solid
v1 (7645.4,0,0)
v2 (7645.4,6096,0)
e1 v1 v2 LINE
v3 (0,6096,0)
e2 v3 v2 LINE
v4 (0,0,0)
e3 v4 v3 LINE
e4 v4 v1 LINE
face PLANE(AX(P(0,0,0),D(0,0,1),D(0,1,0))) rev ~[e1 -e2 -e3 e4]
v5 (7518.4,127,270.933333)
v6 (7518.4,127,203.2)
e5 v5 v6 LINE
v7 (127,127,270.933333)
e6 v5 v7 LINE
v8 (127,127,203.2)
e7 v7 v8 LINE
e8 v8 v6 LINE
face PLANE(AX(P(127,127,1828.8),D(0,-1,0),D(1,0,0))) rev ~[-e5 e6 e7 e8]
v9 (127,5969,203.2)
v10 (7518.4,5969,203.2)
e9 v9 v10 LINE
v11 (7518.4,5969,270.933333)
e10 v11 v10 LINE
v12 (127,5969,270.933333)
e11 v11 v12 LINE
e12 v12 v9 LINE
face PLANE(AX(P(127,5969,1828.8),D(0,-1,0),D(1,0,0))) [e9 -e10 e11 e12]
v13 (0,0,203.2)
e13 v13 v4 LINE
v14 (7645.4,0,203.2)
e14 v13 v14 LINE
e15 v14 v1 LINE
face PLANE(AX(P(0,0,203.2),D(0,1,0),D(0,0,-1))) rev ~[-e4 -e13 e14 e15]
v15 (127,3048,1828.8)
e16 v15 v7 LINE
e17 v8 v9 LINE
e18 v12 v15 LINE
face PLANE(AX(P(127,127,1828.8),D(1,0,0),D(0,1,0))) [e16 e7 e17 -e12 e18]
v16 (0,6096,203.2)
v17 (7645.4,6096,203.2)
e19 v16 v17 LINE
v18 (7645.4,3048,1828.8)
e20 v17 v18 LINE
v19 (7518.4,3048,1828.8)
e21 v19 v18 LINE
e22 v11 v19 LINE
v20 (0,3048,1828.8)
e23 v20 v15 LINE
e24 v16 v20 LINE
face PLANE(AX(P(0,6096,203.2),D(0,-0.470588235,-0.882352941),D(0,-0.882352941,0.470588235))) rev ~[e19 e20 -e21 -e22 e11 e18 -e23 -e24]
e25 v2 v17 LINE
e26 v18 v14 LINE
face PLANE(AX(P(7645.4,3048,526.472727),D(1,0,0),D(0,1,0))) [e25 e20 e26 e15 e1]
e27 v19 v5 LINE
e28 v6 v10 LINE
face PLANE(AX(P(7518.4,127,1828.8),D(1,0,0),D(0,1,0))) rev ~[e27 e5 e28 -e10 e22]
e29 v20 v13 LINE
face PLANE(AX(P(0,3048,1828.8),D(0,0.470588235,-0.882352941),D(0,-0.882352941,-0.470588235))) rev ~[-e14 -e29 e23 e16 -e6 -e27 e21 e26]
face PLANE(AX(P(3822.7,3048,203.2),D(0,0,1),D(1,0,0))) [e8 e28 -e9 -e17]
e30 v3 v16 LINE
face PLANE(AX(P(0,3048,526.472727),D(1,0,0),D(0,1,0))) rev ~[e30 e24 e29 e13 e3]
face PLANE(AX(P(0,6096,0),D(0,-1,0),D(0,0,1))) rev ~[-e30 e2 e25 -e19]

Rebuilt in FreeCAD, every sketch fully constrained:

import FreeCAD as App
import Part
import Sketcher
Q = App.Units.Quantity


def add_polygon(sketch, points):
    """Adds a closed chain of lines whose ends are joined by coincident constraints."""
    first, n = sketch.GeometryCount, len(points)
    for a, b in zip(points, points[1:] + points[:1]):
        sketch.addGeometry(Part.LineSegment(App.Vector(*a, 0), App.Vector(*b, 0)), False)
    for i in range(n):
        sketch.addConstraint(Sketcher.Constraint("Coincident", first + i, 2, first + (i + 1) % n, 1))

doc = App.newDocument("Part")
body = doc.addObject("PartDesign::Body", "Body")

sketch1 = doc.addObject("Sketcher::SketchObject", "Sketch")
body.addObject(sketch1)
sketch1.AttachmentSupport = (doc.YZ_Plane, [""])
sketch1.MapMode = "FlatFace"
add_polygon(sketch1, [(0, 203), (0, 0), (6096, 0), (6096, 203), (3048, 1829)])
sketch1.addConstraint(Sketcher.Constraint("Vertical", 0))
sketch1.addConstraint(Sketcher.Constraint("Horizontal", 1))
sketch1.addConstraint(Sketcher.Constraint("Vertical", 2))
sketch1.addConstraint(Sketcher.Constraint("Coincident", 0, 2, -1, 1))
sketch1.addConstraint(Sketcher.Constraint("Horizontal", 2, 2, 4, 2))
sketch1.addConstraint(Sketcher.Constraint("Equal", 3, 4))
sketch1.addConstraint(Sketcher.Constraint("DistanceX", 1, 1, 1, 2, Q("240 in")))
sketch1.addConstraint(Sketcher.Constraint("DistanceY", 0, 2, 0, 1, Q("8 in")))
sketch1.addConstraint(Sketcher.Constraint("Distance", 3, Q("136 in")))
pad1 = doc.addObject("PartDesign::Pad", "Pad")
body.addObject(pad1)
pad1.Profile = sketch1
pad1.Length = Q("301 in")

sketch2 = doc.addObject("Sketcher::SketchObject", "Sketch001")
body.addObject(sketch2)
sketch2.AttachmentSupport = (doc.XY_Plane, [""])
sketch2.MapMode = "FlatFace"
sketch2.AttachmentOffset = App.Placement(App.Vector(0, 0, 72 * 25.4), App.Rotation())
add_polygon(sketch2, [(127, 5969), (127, 127), (7518, 127), (7518, 5969)])
sketch2.addConstraint(Sketcher.Constraint("Vertical", 0))
sketch2.addConstraint(Sketcher.Constraint("Horizontal", 1))
sketch2.addConstraint(Sketcher.Constraint("Vertical", 2))
sketch2.addConstraint(Sketcher.Constraint("Horizontal", 3))
sketch2.addConstraint(Sketcher.Constraint("DistanceX", 1, 1, 1, 2, Q("291 in")))
sketch2.addConstraint(Sketcher.Constraint("DistanceY", 0, 2, 0, 1, Q("230 in")))
sketch2.addConstraint(Sketcher.Constraint("DistanceX", -1, 1, 0, 2, Q("5 in")))
sketch2.addConstraint(Sketcher.Constraint("DistanceY", -1, 1, 0, 2, Q("5 in")))
pocket1 = doc.addObject("PartDesign::Pocket", "Pocket")
body.addObject(pocket1)
pocket1.Profile = sketch2
pocket1.Length = Q("64 in")

doc.recompute()
